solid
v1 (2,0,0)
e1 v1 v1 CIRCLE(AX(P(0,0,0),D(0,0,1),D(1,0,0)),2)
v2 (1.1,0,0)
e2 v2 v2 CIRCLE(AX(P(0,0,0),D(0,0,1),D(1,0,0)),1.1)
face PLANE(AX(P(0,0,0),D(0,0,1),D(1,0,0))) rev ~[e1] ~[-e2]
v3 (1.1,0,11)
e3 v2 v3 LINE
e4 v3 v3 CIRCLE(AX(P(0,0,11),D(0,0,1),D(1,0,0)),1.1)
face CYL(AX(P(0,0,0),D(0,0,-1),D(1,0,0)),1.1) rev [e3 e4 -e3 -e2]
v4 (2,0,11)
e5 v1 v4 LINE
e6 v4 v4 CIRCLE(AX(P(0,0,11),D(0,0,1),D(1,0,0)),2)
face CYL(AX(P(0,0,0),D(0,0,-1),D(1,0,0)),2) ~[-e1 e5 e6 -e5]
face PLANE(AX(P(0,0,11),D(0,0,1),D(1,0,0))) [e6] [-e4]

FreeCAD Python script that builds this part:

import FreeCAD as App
import Part
import Sketcher
from FreeCAD import Vector

doc = App.newDocument("Part")
params = doc.addObject("Spreadsheet::Sheet", "Params")
for row, (alias, value) in enumerate([
    ("sketch1_diameter", "4 mm"),
    ("sketch1_diameter2", "2.2 mm"),
    ("pad1_length", "11 mm"),
], start=1):
    params.set(f"A{row}", alias)
    params.set(f"B{row}", "=" + value)
    params.setAlias(f"B{row}", alias)

body = doc.addObject("PartDesign::Body", "Body")

# Sketch on XY plane
sketch1 = body.newObject("Sketcher::SketchObject", "Sketch")
sketch1.AttachmentSupport = (doc.getObject("XY_Plane"), [""])
sketch1.MapMode = "FlatFace"
sketch1.addGeometry(Part.Circle(Vector(0, 0, 0), Vector(0, 0, 1), 2), False)
sketch1.addGeometry(Part.Circle(Vector(0, 0, 0), Vector(0, 0, 1), 1.1), False)
sketch1.addConstraint(Sketcher.Constraint("Coincident", 0, 3, -1, 1))
sketch1.addConstraint(Sketcher.Constraint("Coincident", 1, 3, -1, 1))
sketch1.addConstraint(Sketcher.Constraint("Diameter", 0, 4.0))
sketch1.addConstraint(Sketcher.Constraint("Diameter", 1, 2.2))
sketch1.setExpression("Constraints[2]", "Params.sketch1_diameter")
sketch1.setExpression("Constraints[3]", "Params.sketch1_diameter2")
pad1 = body.newObject("PartDesign::Pad", "Pad")
pad1.Profile = sketch1
pad1.setExpression("Length", "Params.pad1_length")

doc.recompute()
